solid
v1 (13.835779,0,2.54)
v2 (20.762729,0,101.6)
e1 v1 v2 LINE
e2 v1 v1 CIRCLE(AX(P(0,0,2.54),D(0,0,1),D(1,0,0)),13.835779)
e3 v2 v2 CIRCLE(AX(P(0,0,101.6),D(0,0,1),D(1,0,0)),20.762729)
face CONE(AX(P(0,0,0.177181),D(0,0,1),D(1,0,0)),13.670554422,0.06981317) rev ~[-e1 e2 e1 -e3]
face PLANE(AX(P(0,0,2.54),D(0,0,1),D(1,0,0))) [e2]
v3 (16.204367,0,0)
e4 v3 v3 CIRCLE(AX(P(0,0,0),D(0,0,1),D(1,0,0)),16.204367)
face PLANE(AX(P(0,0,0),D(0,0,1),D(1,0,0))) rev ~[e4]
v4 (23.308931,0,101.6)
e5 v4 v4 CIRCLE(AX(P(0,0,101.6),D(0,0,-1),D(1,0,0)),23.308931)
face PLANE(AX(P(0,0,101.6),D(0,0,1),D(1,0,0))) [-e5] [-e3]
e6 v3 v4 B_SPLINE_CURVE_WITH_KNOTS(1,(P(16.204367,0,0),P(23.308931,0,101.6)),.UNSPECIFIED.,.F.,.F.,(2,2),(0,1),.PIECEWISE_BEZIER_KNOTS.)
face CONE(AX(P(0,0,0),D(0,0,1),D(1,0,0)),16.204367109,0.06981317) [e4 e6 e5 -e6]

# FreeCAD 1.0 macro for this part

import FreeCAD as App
import Part
import Sketcher

V = App.Vector


def faces_at(feature, points):
    """Names of the faces that lie closest to the given points."""
    faces = feature.Shape.Faces
    near = lambda p: min(range(len(faces)), key=lambda i: faces[i].distToShape(Part.Vertex(*p))[0])
    return sorted({f"Face{near(p) + 1}" for p in points})

doc = App.newDocument("Part")
params = doc.addObject("Spreadsheet::Sheet", "Params")
for row, (alias, value) in enumerate([
    ("pad1_length", "4 in"),
    ("pad1_taper", "4 deg"),
    ("thickness_wall", "0.1 in"),
], start=1):
    params.set(f"A{row}", alias)
    params.set(f"B{row}", "=" + value)
    params.setAlias(f"B{row}", alias)

body = doc.addObject("PartDesign::Body", "Body")

sketch1 = body.newObject("Sketcher::SketchObject", "Sketch")
sketch1.AttachmentSupport = (doc.getObject("XY_Plane"), [""])
sketch1.MapMode = "FlatFace"
sketch1.addGeometry(Part.Circle(V(0, 0, 0), V(0, 0, 1), 16), False)
sketch1.addConstraint([
    Sketcher.Constraint("Coincident", 0, 3, -1, 1),
    Sketcher.Constraint("Diameter", 0, 32.408734),
])
pad1 = body.newObject("PartDesign::Pad", "Pad")
pad1.Profile = sketch1
pad1.setExpression("Length", "Params.pad1_length")
pad1.setExpression("TaperAngle", "Params.pad1_taper")
doc.recompute()

thickness = body.newObject("PartDesign::Thickness", "Thickness")
thickness.Base = (pad1, faces_at(pad1, [(0, 0, 101.6)]))
thickness.setExpression("Value", "Params.thickness_wall")
thickness.Reversed = True
thickness.Join = "Intersection"

doc.recompute()
